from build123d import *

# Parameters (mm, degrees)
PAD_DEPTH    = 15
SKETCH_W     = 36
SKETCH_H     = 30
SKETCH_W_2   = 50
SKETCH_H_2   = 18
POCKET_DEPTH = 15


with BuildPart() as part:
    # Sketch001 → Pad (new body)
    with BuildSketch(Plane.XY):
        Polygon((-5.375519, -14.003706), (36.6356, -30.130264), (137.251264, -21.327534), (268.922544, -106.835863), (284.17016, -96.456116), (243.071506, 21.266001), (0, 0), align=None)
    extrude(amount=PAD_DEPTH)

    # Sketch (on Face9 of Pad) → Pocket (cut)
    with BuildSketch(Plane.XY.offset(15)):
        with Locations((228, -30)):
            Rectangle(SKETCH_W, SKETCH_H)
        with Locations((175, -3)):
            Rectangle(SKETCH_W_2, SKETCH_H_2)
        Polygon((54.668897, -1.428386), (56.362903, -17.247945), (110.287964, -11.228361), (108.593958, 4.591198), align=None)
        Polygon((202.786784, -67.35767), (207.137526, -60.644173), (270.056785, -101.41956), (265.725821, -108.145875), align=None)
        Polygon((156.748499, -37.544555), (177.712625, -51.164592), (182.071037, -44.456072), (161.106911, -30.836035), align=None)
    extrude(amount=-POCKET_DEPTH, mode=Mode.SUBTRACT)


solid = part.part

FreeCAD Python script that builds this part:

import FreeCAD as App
import Part
import Sketcher
Q = App.Units.Quantity


def add_polygon(sketch, points):
    """Adds a closed chain of lines whose ends are joined by coincident constraints."""
    first, n = sketch.GeometryCount, len(points)
    for a, b in zip(points, points[1:] + points[:1]):
        sketch.addGeometry(Part.LineSegment(App.Vector(*a, 0), App.Vector(*b, 0)), False)
    for i in range(n):
        sketch.addConstraint(Sketcher.Constraint("Coincident", first + i, 2, first + (i + 1) % n, 1))

doc = App.newDocument("Part")
body = doc.addObject("PartDesign::Body", "Body")

# Sketch on XY plane
sketch1 = doc.addObject("Sketcher::SketchObject", "Sketch")
body.addObject(sketch1)
sketch1.AttachmentSupport = (doc.XY_Plane, [""])
sketch1.MapMode = "FlatFace"
add_polygon(sketch1, [(-5, -14), (37, -30), (137, -21), (269, -107), (284, -96), (243, 21), (0, 0)])  # lines 0-6
sketch1.addConstraint(Sketcher.Constraint("Coincident", 5, 2, -1, 1))
sketch1.addConstraint(Sketcher.Constraint("Parallel", 1, 5))
sketch1.addConstraint(Sketcher.Constraint("Perpendicular", 0, 6))
sketch1.addConstraint(Sketcher.Constraint("Angle", 0, Q("-21 deg")))
sketch1.addConstraint(Sketcher.Constraint("Angle", 1, Q("5 deg")))
sketch1.addConstraint(Sketcher.Constraint("Angle", 2, Q("-33 deg")))
sketch1.addConstraint(Sketcher.Constraint("Distance", 0, 45.0))
sketch1.addConstraint(Sketcher.Constraint("Distance", 1, 100.999999))
sketch1.addConstraint(Sketcher.Constraint("Distance", 2, 157.000001))
sketch1.addConstraint(Sketcher.Constraint("Distance", 5, 244.0))
sketch1.addConstraint(Sketcher.Constraint("Distance", 6, 15.0))
sketch1.addConstraint(Sketcher.Constraint("Distance", 4, 124.69))
sketch1.addConstraint(Sketcher.Constraint("DistanceX", -1, 1, 3, 2, 284.17016))
pad1 = doc.addObject("PartDesign::Pad", "Pad")
body.addObject(pad1)
pad1.Profile = sketch1
pad1.Length = 15

# Sketch on XY plane
sketch2 = doc.addObject("Sketcher::SketchObject", "Sketch001")
body.addObject(sketch2)
sketch2.AttachmentSupport = (doc.XY_Plane, [""])
sketch2.MapMode = "FlatFace"
sketch2.AttachmentOffset = App.Placement(App.Vector(0, 0, 15), App.Rotation())
add_polygon(sketch2, [(210, -15), (210, -45), (246, -45), (246, -15)])  # lines 0-3
add_polygon(sketch2, [(150, 6), (150, -12), (200, -12), (200, 6)])  # lines 4-7
add_polygon(sketch2, [(55, -1), (56, -17), (110, -11), (109, 5)])  # lines 8-11
add_polygon(sketch2, [(207, -61), (203, -67), (266, -108), (270, -101)])  # lines 12-15
add_polygon(sketch2, [(157, -38), (178, -51), (182, -44), (161, -31)])  # lines 16-19
sketch2.addConstraint(Sketcher.Constraint("Vertical", 0))
sketch2.addConstraint(Sketcher.Constraint("Horizontal", 1))
sketch2.addConstraint(Sketcher.Constraint("Vertical", 2))
sketch2.addConstraint(Sketcher.Constraint("Horizontal", 3))
sketch2.addConstraint(Sketcher.Constraint("Vertical", 4))
sketch2.addConstraint(Sketcher.Constraint("Horizontal", 5))
sketch2.addConstraint(Sketcher.Constraint("Vertical", 6))
sketch2.addConstraint(Sketcher.Constraint("Horizontal", 7))
sketch2.addConstraint(Sketcher.Constraint("Parallel", 8, 10))
sketch2.addConstraint(Sketcher.Constraint("Parallel", 9, 11))
sketch2.addConstraint(Sketcher.Constraint("Perpendicular", 12, 13))
sketch2.addConstraint(Sketcher.Constraint("Parallel", 13, 15))
sketch2.addConstraint(Sketcher.Constraint("Perpendicular", 16, 17))
sketch2.addConstraint(Sketcher.Constraint("Perpendicular", 17, 18))
sketch2.addConstraint(Sketcher.Constraint("Perpendicular", 18, 19))
sketch2.addConstraint(Sketcher.Constraint("Equal", 12, 17))
sketch2.addConstraint(Sketcher.Constraint("DistanceX", 1, 1, 1, 2, 36.0))
sketch2.addConstraint(Sketcher.Constraint("DistanceX", 5, 1, 5, 2, 50.0))
sketch2.addConstraint(Sketcher.Constraint("DistanceY", 0, 2, 0, 1, 30.0))
sketch2.addConstraint(Sketcher.Constraint("DistanceY", 4, 2, 4, 1, 18.0))
sketch2.addConstraint(Sketcher.Constraint("Distance", 12, 8.0))
sketch2.addConstraint(Sketcher.Constraint("Distance", 13, 75.0))
sketch2.addConstraint(Sketcher.Constraint("Distance", 16, 25.0))
sketch2.addConstraint(Sketcher.Constraint("DistanceX", -1, 1, 0, 2, 210.0))
sketch2.addConstraint(Sketcher.Constraint("DistanceY", 0, 2, -1, 1, 45.0))
sketch2.addConstraint(Sketcher.Constraint("DistanceX", -1, 1, 4, 2, 150.0))
sketch2.addConstraint(Sketcher.Constraint("DistanceY", 4, 2, -1, 1, 12.0))
sketch2.addConstraint(Sketcher.Constraint("Distance", 8, 15.91))
sketch2.addConstraint(Sketcher.Constraint("Distance", 9, 54.26))
sketch2.addConstraint(Sketcher.Constraint("DistanceX", 12, 2, 14, 2, 67.270001))
sketch2.addConstraint(Sketcher.Constraint("DistanceY", -1, 1, 10, 2, 4.591198))
sketch2.addConstraint(Sketcher.Constraint("DistanceX", -1, 1, 19, 2, 156.748499))
sketch2.addConstraint(Sketcher.Constraint("DistanceX", 16, 2, 15, 2, 29.424901))
sketch2.addConstraint(Sketcher.Constraint("DistanceY", 15, 2, 17, 2, 16.188101))
sketch2.addConstraint(Sketcher.Constraint("DistanceY", 12, 2, 17, 2, 22.901598))
sketch2.addConstraint(Sketcher.Constraint("DistanceY", 9, 2, -1, 1, 11.228361))
sketch2.addConstraint(Sketcher.Constraint("DistanceX", -1, 1, 10, 2, 108.593958))
sketch2.addConstraint(Sketcher.Constraint("DistanceY", 12, 2, -1, 1, 67.35767))
sketch2.addConstraint(Sketcher.Constraint("DistanceX", -1, 1, 13, 2, 265.725821))
sketch2.addConstraint(Sketcher.Constraint("DistanceX", 8, 2, 9, 2, 53.925061))
pocket1 = doc.addObject("PartDesign::Pocket", "Pocket")
body.addObject(pocket1)
pocket1.Profile = sketch2
pocket1.Length = 15

doc.recompute()
